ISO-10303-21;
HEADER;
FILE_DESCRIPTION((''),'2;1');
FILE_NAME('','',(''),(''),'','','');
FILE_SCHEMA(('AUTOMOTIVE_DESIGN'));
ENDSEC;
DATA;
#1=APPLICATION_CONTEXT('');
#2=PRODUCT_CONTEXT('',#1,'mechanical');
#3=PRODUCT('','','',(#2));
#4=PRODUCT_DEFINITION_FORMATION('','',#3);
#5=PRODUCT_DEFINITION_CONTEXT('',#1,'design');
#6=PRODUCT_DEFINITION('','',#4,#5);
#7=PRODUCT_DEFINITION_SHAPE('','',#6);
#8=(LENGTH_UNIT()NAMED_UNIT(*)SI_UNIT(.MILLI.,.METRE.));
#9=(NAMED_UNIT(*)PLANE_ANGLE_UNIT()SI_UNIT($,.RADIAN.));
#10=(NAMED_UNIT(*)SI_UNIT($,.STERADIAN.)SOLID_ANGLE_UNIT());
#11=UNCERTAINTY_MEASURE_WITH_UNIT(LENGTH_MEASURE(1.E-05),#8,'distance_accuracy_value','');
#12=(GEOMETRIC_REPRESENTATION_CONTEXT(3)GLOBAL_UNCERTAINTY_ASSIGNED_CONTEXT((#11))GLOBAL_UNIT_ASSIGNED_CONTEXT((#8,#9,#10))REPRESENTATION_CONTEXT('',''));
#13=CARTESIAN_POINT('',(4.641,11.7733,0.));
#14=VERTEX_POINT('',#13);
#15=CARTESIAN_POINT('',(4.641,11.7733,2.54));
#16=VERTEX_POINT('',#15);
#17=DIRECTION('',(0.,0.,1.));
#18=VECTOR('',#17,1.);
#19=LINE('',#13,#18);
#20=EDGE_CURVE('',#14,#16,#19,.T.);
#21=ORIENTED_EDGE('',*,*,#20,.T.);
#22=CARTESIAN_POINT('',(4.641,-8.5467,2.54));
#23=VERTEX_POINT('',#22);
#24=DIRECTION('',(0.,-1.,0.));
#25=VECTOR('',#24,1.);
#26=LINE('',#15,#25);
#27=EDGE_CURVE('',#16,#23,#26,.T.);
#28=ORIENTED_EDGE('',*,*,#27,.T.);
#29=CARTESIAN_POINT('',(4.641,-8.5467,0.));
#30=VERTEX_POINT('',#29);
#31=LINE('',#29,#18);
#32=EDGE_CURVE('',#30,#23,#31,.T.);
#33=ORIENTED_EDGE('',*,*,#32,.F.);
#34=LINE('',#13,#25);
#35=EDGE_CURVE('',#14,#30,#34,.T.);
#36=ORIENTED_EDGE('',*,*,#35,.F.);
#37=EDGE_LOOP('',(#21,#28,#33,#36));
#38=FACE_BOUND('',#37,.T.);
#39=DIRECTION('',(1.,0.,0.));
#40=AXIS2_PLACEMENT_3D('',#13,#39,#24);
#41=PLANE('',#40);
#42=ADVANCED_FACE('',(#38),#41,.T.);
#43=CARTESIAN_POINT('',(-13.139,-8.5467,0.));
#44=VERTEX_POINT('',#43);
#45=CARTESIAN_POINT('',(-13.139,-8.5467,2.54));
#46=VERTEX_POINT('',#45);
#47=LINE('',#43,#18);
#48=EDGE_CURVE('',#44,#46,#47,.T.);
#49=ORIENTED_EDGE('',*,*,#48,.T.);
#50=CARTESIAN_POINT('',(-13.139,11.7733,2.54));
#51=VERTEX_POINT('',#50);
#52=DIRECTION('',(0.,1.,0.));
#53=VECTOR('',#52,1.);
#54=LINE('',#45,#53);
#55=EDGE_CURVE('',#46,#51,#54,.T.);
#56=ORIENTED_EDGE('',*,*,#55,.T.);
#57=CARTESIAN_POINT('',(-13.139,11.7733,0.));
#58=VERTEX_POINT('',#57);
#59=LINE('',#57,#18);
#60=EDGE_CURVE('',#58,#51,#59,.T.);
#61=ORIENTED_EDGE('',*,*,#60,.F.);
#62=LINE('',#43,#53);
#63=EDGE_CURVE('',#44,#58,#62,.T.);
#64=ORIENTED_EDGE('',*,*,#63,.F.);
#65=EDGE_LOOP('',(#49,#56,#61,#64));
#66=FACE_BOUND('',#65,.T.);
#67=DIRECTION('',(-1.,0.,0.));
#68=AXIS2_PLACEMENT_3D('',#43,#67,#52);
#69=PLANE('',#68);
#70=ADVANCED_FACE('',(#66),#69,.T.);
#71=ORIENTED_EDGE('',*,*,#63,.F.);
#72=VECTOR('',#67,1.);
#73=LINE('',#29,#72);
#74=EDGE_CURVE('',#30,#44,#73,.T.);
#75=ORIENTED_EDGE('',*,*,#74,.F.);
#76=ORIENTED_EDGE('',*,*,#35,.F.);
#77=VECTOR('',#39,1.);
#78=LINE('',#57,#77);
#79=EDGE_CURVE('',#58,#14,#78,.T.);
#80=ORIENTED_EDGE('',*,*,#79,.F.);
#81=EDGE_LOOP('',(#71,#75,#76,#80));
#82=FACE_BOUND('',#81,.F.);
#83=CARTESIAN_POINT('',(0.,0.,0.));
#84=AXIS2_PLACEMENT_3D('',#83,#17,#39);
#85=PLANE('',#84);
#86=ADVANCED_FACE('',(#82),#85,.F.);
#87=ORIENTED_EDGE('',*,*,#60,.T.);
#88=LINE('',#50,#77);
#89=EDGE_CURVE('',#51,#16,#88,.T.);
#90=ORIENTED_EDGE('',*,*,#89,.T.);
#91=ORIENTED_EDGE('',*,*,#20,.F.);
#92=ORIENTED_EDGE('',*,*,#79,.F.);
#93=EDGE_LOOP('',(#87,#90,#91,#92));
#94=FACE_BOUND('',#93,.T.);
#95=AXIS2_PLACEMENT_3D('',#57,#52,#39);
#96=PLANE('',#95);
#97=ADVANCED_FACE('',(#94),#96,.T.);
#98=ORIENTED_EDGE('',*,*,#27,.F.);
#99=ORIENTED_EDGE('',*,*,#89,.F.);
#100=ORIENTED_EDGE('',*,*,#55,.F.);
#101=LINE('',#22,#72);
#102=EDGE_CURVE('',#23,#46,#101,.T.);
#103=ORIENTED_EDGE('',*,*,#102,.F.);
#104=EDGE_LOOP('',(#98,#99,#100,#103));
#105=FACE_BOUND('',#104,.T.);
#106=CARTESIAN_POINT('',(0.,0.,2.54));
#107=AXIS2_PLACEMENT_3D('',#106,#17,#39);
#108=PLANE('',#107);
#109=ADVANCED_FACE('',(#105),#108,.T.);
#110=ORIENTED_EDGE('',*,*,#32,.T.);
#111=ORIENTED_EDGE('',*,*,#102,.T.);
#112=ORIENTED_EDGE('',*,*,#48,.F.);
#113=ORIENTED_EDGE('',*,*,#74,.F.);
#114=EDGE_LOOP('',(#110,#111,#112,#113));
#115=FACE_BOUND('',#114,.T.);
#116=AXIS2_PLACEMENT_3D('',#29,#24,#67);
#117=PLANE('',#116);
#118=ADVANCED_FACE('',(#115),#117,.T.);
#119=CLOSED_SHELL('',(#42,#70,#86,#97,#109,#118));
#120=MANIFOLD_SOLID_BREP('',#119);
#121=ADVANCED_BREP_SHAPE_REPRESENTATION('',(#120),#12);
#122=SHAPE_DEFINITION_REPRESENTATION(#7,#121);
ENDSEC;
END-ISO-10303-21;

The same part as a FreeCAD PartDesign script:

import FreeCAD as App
import Part
import Sketcher

V = App.Vector
Q = App.Units.Quantity


def add_polygon(sketch, points):
    """Adds a closed chain of lines whose ends are joined by coincident constraints."""
    first, n = sketch.GeometryCount, len(points)
    for a, b in zip(points, points[1:] + points[:1]):
        sketch.addGeometry(Part.LineSegment(App.Vector(*a, 0), App.Vector(*b, 0)), False)
    for i in range(n):
        sketch.addConstraint(Sketcher.Constraint("Coincident", first + i, 2, first + (i + 1) % n, 1))

doc = App.newDocument("Part")
body = doc.addObject("PartDesign::Body", "Body")

# Sketch on XY plane
sketch1 = body.newObject("Sketcher::SketchObject", "Sketch")
sketch1.AttachmentSupport = (doc.getObject("XY_Plane"), [""])
sketch1.MapMode = "FlatFace"
add_polygon(sketch1, [(5, 12), (-13, 12), (-13, -9), (5, -9)])  # lines 0-3
sketch1.addConstraint([
    Sketcher.Constraint("Horizontal", 0),
    Sketcher.Constraint("Vertical", 1),
    Sketcher.Constraint("Horizontal", 2),
    Sketcher.Constraint("Vertical", 3),
    Sketcher.Constraint("DistanceX", 0, 2, 0, 1, Q("0.7 in")),
    Sketcher.Constraint("DistanceY", 1, 2, 1, 1, Q("0.8 in")),
    Sketcher.Constraint("DistanceX", 0, 2, -1, 1, 13.139),
    Sketcher.Constraint("DistanceY", -1, 1, 0, 2, 11.7733),
])
pad1 = body.newObject("PartDesign::Pad", "Pad")
pad1.Profile = sketch1
pad1.Length = Q("0.1 in")

doc.recompute()
